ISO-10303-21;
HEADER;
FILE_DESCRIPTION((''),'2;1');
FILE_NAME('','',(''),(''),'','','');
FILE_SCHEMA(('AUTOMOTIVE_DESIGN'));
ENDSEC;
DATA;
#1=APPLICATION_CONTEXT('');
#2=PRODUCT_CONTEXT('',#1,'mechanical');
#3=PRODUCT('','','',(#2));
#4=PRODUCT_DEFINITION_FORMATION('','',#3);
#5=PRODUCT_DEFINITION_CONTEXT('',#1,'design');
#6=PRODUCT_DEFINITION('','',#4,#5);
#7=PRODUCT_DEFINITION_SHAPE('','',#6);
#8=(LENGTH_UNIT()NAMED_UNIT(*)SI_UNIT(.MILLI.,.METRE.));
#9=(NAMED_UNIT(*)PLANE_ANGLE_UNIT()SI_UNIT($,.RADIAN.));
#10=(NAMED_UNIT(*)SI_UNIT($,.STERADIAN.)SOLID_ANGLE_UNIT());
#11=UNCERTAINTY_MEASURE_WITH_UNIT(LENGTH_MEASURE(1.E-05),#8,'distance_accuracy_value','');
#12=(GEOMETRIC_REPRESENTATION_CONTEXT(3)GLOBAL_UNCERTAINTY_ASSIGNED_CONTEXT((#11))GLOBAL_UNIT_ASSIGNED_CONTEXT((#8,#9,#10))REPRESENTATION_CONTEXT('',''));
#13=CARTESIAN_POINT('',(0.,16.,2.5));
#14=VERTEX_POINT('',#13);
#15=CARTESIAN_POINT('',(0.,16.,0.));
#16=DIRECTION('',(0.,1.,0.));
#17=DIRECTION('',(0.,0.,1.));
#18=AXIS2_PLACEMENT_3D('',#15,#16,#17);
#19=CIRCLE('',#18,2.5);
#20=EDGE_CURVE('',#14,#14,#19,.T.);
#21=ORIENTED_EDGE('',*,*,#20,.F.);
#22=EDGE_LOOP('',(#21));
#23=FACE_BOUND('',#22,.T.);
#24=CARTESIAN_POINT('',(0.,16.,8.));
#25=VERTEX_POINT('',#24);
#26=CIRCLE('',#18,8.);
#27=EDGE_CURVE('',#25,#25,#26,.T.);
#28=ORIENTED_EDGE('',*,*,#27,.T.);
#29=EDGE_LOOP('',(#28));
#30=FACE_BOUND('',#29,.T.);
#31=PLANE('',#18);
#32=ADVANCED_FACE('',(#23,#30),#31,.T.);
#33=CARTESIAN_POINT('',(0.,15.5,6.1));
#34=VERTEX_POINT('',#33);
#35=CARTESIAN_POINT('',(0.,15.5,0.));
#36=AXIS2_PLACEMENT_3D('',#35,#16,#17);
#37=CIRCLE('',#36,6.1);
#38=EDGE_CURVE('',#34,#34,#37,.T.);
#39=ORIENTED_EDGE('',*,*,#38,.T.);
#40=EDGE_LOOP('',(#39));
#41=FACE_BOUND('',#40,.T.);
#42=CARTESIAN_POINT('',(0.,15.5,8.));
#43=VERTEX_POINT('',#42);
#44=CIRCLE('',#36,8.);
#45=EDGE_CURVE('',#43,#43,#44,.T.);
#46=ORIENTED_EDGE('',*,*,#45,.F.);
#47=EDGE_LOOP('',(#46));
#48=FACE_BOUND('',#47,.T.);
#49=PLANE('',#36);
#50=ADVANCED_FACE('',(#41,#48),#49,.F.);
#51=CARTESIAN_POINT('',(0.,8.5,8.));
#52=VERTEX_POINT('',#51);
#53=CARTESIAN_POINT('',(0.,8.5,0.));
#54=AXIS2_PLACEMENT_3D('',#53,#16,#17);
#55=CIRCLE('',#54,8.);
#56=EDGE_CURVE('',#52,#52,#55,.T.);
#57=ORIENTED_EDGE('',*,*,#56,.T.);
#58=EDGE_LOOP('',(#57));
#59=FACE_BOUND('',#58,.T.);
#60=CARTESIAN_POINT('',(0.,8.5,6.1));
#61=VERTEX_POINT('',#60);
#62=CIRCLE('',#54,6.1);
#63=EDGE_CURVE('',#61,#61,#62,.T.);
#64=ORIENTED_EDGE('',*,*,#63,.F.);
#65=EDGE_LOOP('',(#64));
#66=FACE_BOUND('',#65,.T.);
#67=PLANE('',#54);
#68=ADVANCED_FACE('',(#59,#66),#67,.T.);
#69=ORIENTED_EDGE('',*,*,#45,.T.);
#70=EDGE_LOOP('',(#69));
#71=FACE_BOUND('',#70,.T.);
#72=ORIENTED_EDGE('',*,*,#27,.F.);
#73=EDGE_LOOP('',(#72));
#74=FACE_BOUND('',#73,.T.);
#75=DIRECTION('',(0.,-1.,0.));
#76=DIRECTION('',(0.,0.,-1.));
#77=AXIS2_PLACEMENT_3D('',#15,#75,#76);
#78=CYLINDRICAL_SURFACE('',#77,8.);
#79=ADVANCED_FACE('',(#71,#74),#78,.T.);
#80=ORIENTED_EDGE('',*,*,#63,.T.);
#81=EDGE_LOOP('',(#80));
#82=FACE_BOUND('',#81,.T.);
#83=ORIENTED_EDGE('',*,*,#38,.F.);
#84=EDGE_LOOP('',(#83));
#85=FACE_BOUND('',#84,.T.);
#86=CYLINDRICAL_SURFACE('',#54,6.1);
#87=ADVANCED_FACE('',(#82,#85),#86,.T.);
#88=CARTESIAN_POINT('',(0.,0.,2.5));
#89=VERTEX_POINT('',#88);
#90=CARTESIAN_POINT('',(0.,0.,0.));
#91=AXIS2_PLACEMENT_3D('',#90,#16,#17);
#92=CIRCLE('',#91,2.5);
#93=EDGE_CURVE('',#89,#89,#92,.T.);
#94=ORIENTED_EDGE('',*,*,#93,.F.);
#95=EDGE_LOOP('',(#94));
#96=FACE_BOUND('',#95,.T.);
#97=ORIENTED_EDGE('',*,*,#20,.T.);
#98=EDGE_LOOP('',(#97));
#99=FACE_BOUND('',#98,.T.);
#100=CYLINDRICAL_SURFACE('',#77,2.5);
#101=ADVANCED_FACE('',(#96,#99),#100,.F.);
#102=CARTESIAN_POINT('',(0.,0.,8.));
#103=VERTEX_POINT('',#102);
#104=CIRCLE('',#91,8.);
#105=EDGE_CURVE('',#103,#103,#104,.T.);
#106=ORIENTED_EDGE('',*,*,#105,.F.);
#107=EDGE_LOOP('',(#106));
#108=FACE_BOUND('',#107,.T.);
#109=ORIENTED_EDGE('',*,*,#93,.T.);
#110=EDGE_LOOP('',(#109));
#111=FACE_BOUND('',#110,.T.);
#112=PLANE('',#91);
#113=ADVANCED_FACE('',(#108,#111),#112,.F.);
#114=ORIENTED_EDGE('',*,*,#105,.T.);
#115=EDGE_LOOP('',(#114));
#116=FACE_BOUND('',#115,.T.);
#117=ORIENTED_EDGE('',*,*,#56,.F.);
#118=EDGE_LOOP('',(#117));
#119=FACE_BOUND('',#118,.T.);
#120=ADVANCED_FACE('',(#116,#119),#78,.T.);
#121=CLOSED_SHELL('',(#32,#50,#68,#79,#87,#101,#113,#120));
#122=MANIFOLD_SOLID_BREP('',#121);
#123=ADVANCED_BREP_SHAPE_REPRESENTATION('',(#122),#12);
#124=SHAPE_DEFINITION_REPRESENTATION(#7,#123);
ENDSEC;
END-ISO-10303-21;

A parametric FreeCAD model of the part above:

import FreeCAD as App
import Part
import Sketcher

doc = App.newDocument("Part")
body = doc.addObject("PartDesign::Body", "Body")

# Sketch on XZ plane
sketch1 = body.newObject("Sketcher::SketchObject", "Sketch")
sketch1.AttachmentSupport = (doc.getObject("XZ_Plane"), [""])
sketch1.MapMode = "FlatFace"
sketch1.addGeometry([
    Part.Circle(App.Vector(0, 0, 0), App.Vector(0, 0, 1), 8),
    Part.Circle(App.Vector(0, 0, 0), App.Vector(0, 0, 1), 2.5),
], False)
sketch1.addConstraint([
    Sketcher.Constraint("Coincident", 0, 3, -1, 1),
    Sketcher.Constraint("Coincident", 1, 3, -1, 1),
    Sketcher.Constraint("Diameter", 0, 16.0),
    Sketcher.Constraint("Diameter", 1, 5.0),
])
pad1 = body.newObject("PartDesign::Pad", "Pad")
pad1.Profile = sketch1
pad1.Length = 16
pad1.Reversed = True

# Sketch on XZ plane
sketch2 = body.newObject("Sketcher::SketchObject", "Sketch001")
sketch2.AttachmentSupport = (doc.getObject("XZ_Plane"), [""])
sketch2.MapMode = "FlatFace"
sketch2.AttachmentOffset = App.Placement(App.Vector(0, 0, -15.5), App.Rotation())
sketch2.addGeometry([
    Part.Circle(App.Vector(0, 0, 0), App.Vector(0, 0, 1), 9),
    Part.Circle(App.Vector(0, 0, 0), App.Vector(0, 0, 1), 6),
], False)
sketch2.addConstraint([
    Sketcher.Constraint("Coincident", 0, 3, -1, 1),
    Sketcher.Constraint("Coincident", 1, 3, -1, 1),
    Sketcher.Constraint("Diameter", 1, 12.2),
    Sketcher.Constraint("Diameter", 0, 17.039382),
])
pocket1 = body.newObject("PartDesign::Pocket", "Pocket")
pocket1.Profile = sketch2
pocket1.Length = 7
pocket1.Reversed = True

doc.recompute()
